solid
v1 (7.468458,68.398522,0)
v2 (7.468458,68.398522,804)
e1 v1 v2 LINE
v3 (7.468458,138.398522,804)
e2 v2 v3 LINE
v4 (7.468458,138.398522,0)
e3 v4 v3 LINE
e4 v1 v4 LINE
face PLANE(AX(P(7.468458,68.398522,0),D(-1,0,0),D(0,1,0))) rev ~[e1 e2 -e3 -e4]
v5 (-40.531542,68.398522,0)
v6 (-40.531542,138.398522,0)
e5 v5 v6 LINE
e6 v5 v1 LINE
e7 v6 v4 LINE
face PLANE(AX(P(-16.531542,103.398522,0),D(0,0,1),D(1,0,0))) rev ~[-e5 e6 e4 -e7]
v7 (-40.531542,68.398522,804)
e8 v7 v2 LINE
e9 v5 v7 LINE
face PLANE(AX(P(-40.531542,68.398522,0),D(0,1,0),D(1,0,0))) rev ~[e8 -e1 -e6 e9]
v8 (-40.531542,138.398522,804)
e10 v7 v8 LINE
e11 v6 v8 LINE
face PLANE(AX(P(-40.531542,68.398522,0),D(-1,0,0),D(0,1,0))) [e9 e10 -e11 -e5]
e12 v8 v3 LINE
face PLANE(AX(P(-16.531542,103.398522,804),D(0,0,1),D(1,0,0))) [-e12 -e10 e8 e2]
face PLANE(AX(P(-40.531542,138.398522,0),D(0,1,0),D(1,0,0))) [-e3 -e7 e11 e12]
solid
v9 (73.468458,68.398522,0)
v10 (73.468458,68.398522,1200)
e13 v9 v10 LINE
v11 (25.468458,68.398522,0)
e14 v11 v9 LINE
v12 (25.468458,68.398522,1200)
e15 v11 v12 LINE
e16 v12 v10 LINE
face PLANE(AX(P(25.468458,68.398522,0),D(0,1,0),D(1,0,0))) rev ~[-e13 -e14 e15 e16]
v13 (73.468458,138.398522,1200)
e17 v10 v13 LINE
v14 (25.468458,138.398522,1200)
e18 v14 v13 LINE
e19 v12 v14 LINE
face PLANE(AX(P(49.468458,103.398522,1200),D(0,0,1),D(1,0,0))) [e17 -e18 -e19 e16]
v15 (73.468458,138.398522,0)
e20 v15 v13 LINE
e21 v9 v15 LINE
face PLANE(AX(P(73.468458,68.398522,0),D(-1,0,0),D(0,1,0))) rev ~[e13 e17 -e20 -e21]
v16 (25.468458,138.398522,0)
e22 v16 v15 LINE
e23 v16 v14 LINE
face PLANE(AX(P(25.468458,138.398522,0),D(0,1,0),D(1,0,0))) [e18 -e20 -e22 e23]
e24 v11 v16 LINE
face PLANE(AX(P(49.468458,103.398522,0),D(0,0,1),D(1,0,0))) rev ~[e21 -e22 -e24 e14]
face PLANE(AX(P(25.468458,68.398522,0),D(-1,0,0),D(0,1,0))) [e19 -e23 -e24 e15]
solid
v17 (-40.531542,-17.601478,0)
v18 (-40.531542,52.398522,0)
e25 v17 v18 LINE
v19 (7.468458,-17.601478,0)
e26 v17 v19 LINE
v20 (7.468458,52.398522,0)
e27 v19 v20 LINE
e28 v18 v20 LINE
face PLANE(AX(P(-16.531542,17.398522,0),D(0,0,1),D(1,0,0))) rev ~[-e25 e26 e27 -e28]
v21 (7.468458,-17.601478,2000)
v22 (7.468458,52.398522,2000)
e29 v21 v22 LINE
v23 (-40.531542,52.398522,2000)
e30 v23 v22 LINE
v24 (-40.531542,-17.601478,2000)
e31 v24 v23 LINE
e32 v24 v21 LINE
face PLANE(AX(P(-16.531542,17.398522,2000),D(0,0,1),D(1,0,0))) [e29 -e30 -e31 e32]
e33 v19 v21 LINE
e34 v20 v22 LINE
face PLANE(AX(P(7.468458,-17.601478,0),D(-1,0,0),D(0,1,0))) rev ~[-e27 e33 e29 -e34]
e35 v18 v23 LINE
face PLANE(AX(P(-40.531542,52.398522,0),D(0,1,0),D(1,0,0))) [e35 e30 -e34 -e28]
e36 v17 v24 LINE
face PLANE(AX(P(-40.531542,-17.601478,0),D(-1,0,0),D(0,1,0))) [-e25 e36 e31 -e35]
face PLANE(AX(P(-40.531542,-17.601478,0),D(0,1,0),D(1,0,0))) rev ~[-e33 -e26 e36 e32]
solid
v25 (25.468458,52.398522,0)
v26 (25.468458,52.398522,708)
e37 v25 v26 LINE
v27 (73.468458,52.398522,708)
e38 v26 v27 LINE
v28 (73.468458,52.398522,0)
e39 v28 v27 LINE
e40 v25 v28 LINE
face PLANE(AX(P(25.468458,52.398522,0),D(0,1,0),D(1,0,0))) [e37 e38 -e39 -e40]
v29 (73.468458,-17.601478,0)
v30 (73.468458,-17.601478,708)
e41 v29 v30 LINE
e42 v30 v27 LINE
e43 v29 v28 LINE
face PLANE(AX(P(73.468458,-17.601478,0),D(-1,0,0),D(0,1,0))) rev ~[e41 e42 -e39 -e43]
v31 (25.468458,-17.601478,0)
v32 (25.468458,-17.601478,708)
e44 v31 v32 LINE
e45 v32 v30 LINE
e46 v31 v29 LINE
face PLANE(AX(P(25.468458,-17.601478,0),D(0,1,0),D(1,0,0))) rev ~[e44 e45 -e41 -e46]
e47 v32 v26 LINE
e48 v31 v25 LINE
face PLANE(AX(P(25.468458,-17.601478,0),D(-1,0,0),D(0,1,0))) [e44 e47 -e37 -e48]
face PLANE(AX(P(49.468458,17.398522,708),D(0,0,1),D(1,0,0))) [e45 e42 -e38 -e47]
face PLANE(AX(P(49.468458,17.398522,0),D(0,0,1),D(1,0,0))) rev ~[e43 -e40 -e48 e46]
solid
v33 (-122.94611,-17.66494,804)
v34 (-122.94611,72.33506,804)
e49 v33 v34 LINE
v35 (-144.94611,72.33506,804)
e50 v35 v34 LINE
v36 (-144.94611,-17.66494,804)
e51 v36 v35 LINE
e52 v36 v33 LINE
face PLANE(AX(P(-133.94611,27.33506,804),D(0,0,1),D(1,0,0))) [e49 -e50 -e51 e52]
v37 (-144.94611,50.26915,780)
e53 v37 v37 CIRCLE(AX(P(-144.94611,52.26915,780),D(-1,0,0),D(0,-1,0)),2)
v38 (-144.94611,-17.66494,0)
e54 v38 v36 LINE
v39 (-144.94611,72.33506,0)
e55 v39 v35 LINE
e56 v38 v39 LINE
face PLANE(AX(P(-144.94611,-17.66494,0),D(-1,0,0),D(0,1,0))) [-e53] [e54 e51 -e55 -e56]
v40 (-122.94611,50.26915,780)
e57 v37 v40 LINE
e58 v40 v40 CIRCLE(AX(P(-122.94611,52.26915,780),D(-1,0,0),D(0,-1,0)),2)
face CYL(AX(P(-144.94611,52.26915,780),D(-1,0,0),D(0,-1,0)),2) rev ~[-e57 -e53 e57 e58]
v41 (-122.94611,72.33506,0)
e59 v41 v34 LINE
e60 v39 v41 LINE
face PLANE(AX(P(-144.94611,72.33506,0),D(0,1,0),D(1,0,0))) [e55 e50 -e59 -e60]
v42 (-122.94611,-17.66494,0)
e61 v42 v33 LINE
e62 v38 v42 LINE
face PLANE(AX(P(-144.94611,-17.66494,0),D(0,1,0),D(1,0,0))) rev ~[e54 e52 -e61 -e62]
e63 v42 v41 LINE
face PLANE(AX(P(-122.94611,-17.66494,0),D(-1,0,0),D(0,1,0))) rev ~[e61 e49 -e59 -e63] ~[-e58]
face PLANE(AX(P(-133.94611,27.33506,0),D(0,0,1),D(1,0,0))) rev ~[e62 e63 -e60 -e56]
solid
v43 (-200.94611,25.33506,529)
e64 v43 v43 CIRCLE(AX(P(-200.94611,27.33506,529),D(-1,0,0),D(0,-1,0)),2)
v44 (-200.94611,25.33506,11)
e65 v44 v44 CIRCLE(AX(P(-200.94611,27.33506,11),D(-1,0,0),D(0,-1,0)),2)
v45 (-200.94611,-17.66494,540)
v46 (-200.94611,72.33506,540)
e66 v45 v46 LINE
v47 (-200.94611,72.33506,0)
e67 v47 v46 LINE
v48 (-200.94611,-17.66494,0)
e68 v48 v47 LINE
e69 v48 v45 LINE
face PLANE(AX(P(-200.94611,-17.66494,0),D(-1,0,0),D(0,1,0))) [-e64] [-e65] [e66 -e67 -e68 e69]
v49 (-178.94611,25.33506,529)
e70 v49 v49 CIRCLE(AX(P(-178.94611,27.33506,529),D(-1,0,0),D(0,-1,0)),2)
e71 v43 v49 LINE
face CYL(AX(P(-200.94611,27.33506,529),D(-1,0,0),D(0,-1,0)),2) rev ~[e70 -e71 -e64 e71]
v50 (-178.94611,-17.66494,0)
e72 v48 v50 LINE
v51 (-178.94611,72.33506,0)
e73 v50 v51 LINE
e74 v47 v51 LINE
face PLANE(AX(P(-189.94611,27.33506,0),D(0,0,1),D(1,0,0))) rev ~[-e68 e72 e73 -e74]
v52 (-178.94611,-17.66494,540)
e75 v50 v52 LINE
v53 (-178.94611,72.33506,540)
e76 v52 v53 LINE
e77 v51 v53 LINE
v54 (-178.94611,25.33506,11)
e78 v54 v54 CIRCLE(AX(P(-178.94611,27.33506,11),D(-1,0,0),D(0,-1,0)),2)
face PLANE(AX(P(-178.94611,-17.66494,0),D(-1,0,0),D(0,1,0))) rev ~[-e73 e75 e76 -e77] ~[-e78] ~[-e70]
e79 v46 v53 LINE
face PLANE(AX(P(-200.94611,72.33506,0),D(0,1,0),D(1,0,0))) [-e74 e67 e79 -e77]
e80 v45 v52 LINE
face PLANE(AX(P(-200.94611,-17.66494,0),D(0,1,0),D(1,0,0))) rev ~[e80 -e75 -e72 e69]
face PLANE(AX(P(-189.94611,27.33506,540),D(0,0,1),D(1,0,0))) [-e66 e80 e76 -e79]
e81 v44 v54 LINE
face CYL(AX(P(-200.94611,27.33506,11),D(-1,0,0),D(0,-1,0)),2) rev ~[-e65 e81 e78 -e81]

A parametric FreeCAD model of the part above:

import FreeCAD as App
import Part
import Sketcher

V = App.Vector


def add_polygon(sketch, points):
    """Adds a closed chain of lines whose ends are joined by coincident constraints."""
    first, n = sketch.GeometryCount, len(points)
    for a, b in zip(points, points[1:] + points[:1]):
        sketch.addGeometry(Part.LineSegment(App.Vector(*a, 0), App.Vector(*b, 0)), False)
    for i in range(n):
        sketch.addConstraint(Sketcher.Constraint("Coincident", first + i, 2, first + (i + 1) % n, 1))

doc = App.newDocument("Part")
body = doc.addObject("PartDesign::Body", "Body")

# Sketch on XY plane
sketch1 = doc.addObject("Sketcher::SketchObject", "Sketch")
body.addObject(sketch1)
sketch1.AttachmentSupport = (doc.XY_Plane, [""])
sketch1.MapMode = "FlatFace"
add_polygon(sketch1, [(-41, 52), (-41, -18), (7, -18), (7, 52)])  # lines 0-3
sketch1.addConstraint(Sketcher.Constraint("Vertical", 0))
sketch1.addConstraint(Sketcher.Constraint("Horizontal", 1))
sketch1.addConstraint(Sketcher.Constraint("Vertical", 2))
sketch1.addConstraint(Sketcher.Constraint("Horizontal", 3))
sketch1.addConstraint(Sketcher.Constraint("DistanceX", 1, 1, 1, 2, 48.0))
sketch1.addConstraint(Sketcher.Constraint("DistanceY", 0, 2, 0, 1, 70.0))
sketch1.addConstraint(Sketcher.Constraint("DistanceY", 0, 2, -1, 1, 17.601478))
sketch1.addConstraint(Sketcher.Constraint("DistanceX", 0, 2, -1, 1, 40.531542))
pad1 = doc.addObject("PartDesign::Pad", "Pad")
body.addObject(pad1)
pad1.Profile = sketch1
pad1.Length = 2000
body2 = doc.addObject("PartDesign::Body", "Body001")

# Sketch on XY plane
sketch2 = doc.addObject("Sketcher::SketchObject", "Sketch001")
body2.addObject(sketch2)
sketch2.AttachmentSupport = (doc.getObject("XY_Plane001"), [""])
sketch2.MapMode = "FlatFace"
add_polygon(sketch2, [(-41, 138), (-41, 68), (7, 68), (7, 138)])  # lines 0-3
sketch2.addConstraint(Sketcher.Constraint("Vertical", 0))
sketch2.addConstraint(Sketcher.Constraint("Horizontal", 1))
sketch2.addConstraint(Sketcher.Constraint("Vertical", 2))
sketch2.addConstraint(Sketcher.Constraint("Horizontal", 3))
sketch2.addConstraint(Sketcher.Constraint("DistanceX", 1, 1, 1, 2, 48.0))
sketch2.addConstraint(Sketcher.Constraint("DistanceY", 0, 2, 0, 1, 70.0))
sketch2.addConstraint(Sketcher.Constraint("DistanceY", -1, 1, 0, 2, 68.398522))
sketch2.addConstraint(Sketcher.Constraint("DistanceX", 0, 2, -1, 1, 40.531542))
pad2 = doc.addObject("PartDesign::Pad", "Pad001")
body2.addObject(pad2)
pad2.Profile = sketch2
pad2.Length = 804
body3 = doc.addObject("PartDesign::Body", "Body002")

# Sketch on XY plane
sketch3 = doc.addObject("Sketcher::SketchObject", "Sketch002")
body3.addObject(sketch3)
sketch3.AttachmentSupport = (doc.getObject("XY_Plane002"), [""])
sketch3.MapMode = "FlatFace"
add_polygon(sketch3, [(25, 138), (25, 68), (73, 68), (73, 138)])  # lines 0-3
sketch3.addConstraint(Sketcher.Constraint("Vertical", 0))
sketch3.addConstraint(Sketcher.Constraint("Horizontal", 1))
sketch3.addConstraint(Sketcher.Constraint("Vertical", 2))
sketch3.addConstraint(Sketcher.Constraint("Horizontal", 3))
sketch3.addConstraint(Sketcher.Constraint("DistanceX", 1, 1, 1, 2, 48.0))
sketch3.addConstraint(Sketcher.Constraint("DistanceY", 0, 2, 0, 1, 70.0))
sketch3.addConstraint(Sketcher.Constraint("DistanceY", -1, 1, 0, 2, 68.398522))
sketch3.addConstraint(Sketcher.Constraint("DistanceX", -1, 1, 1, 2, 73.468458))
pad3 = doc.addObject("PartDesign::Pad", "Pad002")
body3.addObject(pad3)
pad3.Profile = sketch3
pad3.Length = 1200
body4 = doc.addObject("PartDesign::Body", "Body003")

# Sketch on XY plane
sketch4 = doc.addObject("Sketcher::SketchObject", "Sketch003")
body4.addObject(sketch4)
sketch4.AttachmentSupport = (doc.getObject("XY_Plane003"), [""])
sketch4.MapMode = "FlatFace"
add_polygon(sketch4, [(25, 52), (25, -18), (73, -18), (73, 52)])  # lines 0-3
sketch4.addConstraint(Sketcher.Constraint("Vertical", 0))
sketch4.addConstraint(Sketcher.Constraint("Horizontal", 1))
sketch4.addConstraint(Sketcher.Constraint("Vertical", 2))
sketch4.addConstraint(Sketcher.Constraint("Horizontal", 3))
sketch4.addConstraint(Sketcher.Constraint("DistanceX", 1, 1, 1, 2, 48.0))
sketch4.addConstraint(Sketcher.Constraint("DistanceY", 0, 2, 0, 1, 70.0))
sketch4.addConstraint(Sketcher.Constraint("DistanceY", 0, 2, -1, 1, 17.601478))
sketch4.addConstraint(Sketcher.Constraint("DistanceX", -1, 1, 1, 2, 73.468458))
pad4 = doc.addObject("PartDesign::Pad", "Pad003")
body4.addObject(pad4)
pad4.Profile = sketch4
pad4.Length = 708
body5 = doc.addObject("PartDesign::Body", "Body004")

# Sketch on XY plane
sketch5 = doc.addObject("Sketcher::SketchObject", "Sketch004")
body5.addObject(sketch5)
sketch5.AttachmentSupport = (doc.getObject("XY_Plane004"), [""])
sketch5.MapMode = "FlatFace"
add_polygon(sketch5, [(-145, 72), (-145, -18), (-123, -18), (-123, 72)])  # lines 0-3
sketch5.addConstraint(Sketcher.Constraint("Vertical", 0))
sketch5.addConstraint(Sketcher.Constraint("Horizontal", 1))
sketch5.addConstraint(Sketcher.Constraint("Vertical", 2))
sketch5.addConstraint(Sketcher.Constraint("Horizontal", 3))
sketch5.addConstraint(Sketcher.Constraint("DistanceX", 1, 1, 1, 2, 22.0))
sketch5.addConstraint(Sketcher.Constraint("DistanceY", 0, 2, 0, 1, 90.0))
sketch5.addConstraint(Sketcher.Constraint("DistanceX", 0, 2, -1, 1, 144.94611))
sketch5.addConstraint(Sketcher.Constraint("DistanceY", 0, 2, -1, 1, 17.66494))
pad5 = doc.addObject("PartDesign::Pad", "Pad004")
body5.addObject(pad5)
pad5.Profile = sketch5
pad5.Length = 804

# Sketch on YZ plane
sketch6 = doc.addObject("Sketcher::SketchObject", "Sketch005")
body5.addObject(sketch6)
sketch6.AttachmentSupport = (doc.getObject("YZ_Plane004"), [""])
sketch6.MapMode = "FlatFace"
sketch6.AttachmentOffset = App.Placement(V(0, 0, -144.94611), App.Rotation())
sketch6.addGeometry(Part.Circle(V(52.3, 780, 0), V(0, 0, 1), 2), False)
sketch6.addConstraint(Sketcher.Constraint("Diameter", 0, 4.0))
sketch6.addConstraint(Sketcher.Constraint("DistanceY", -1, 1, 0, 3, 780.0))
sketch6.addConstraint(Sketcher.Constraint("DistanceX", -1, 1, 0, 3, 52.26915))
pocket1 = doc.addObject("PartDesign::Pocket", "Pocket")
body5.addObject(pocket1)
pocket1.Profile = sketch6
pocket1.Type = "ThroughAll"
pocket1.Reversed = True
body6 = doc.addObject("PartDesign::Body", "Body005")

# Sketch on XY plane
sketch7 = doc.addObject("Sketcher::SketchObject", "Sketch006")
body6.addObject(sketch7)
sketch7.AttachmentSupport = (doc.getObject("XY_Plane005"), [""])
sketch7.MapMode = "FlatFace"
add_polygon(sketch7, [(-201, 72), (-201, -18), (-179, -18), (-179, 72)])  # lines 0-3
sketch7.addConstraint(Sketcher.Constraint("Vertical", 0))
sketch7.addConstraint(Sketcher.Constraint("Horizontal", 1))
sketch7.addConstraint(Sketcher.Constraint("Vertical", 2))
sketch7.addConstraint(Sketcher.Constraint("Horizontal", 3))
sketch7.addConstraint(Sketcher.Constraint("DistanceX", 1, 1, 1, 2, 22.0))
sketch7.addConstraint(Sketcher.Constraint("DistanceY", 0, 2, 0, 1, 90.0))
sketch7.addConstraint(Sketcher.Constraint("DistanceX", 0, 2, -1, 1, 200.94611))
sketch7.addConstraint(Sketcher.Constraint("DistanceY", 0, 2, -1, 1, 17.66494))
pad6 = doc.addObject("PartDesign::Pad", "Pad005")
body6.addObject(pad6)
pad6.Profile = sketch7
pad6.Length = 540

# Sketch on YZ plane
sketch8 = doc.addObject("Sketcher::SketchObject", "Sketch007")
body6.addObject(sketch8)
sketch8.AttachmentSupport = (doc.getObject("YZ_Plane005"), [""])
sketch8.MapMode = "FlatFace"
sketch8.AttachmentOffset = App.Placement(V(0, 0, -200.94611), App.Rotation())
sketch8.addGeometry(Part.Circle(V(27.3, 529, 0), V(0, 0, 1), 2), False)
sketch8.addGeometry(Part.Circle(V(27.3, 11, 0), V(0, 0, 1), 2), False)
sketch8.addConstraint(Sketcher.Constraint("Equal", 0, 1))
sketch8.addConstraint(Sketcher.Constraint("Vertical", 0, 3, 1, 3))
sketch8.addConstraint(Sketcher.Constraint("Diameter", 0, 4.0))
sketch8.addConstraint(Sketcher.Constraint("DistanceY", -1, 1, 0, 3, 529.0))
sketch8.addConstraint(Sketcher.Constraint("DistanceY", -1, 1, 1, 3, 11.0))
sketch8.addConstraint(Sketcher.Constraint("DistanceX", -1, 1, 0, 3, 27.33506))
pocket2 = doc.addObject("PartDesign::Pocket", "Pocket001")
body6.addObject(pocket2)
pocket2.Profile = sketch8
pocket2.Type = "ThroughAll"
pocket2.Reversed = True

doc.recompute()
